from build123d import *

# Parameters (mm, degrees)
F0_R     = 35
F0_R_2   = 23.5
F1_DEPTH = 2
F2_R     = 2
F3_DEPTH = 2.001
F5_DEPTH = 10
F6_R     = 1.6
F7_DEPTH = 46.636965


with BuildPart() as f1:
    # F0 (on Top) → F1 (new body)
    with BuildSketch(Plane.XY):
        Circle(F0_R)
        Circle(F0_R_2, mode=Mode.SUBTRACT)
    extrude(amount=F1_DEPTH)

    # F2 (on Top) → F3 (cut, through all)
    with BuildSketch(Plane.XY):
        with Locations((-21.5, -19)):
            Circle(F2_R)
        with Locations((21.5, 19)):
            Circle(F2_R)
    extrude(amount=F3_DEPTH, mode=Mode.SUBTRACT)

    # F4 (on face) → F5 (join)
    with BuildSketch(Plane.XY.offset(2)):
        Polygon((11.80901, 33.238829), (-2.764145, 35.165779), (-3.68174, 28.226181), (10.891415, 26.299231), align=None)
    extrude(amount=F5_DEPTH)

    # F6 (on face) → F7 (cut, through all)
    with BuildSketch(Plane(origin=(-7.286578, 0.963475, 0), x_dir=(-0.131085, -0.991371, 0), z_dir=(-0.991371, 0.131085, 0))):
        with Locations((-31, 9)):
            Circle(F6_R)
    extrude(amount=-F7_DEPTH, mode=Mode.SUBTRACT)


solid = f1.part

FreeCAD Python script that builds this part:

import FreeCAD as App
import Part
import Sketcher
Q = App.Units.Quantity


def add_polygon(sketch, points):
    """Adds a closed chain of lines whose ends are joined by coincident constraints."""
    first, n = sketch.GeometryCount, len(points)
    for a, b in zip(points, points[1:] + points[:1]):
        sketch.addGeometry(Part.LineSegment(App.Vector(*a, 0), App.Vector(*b, 0)), False)
    for i in range(n):
        sketch.addConstraint(Sketcher.Constraint("Coincident", first + i, 2, first + (i + 1) % n, 1))

doc = App.newDocument("Part")
body = doc.addObject("PartDesign::Body", "Body")

sketch1 = doc.addObject("Sketcher::SketchObject", "Sketch")
body.addObject(sketch1)
sketch1.AttachmentSupport = (doc.XY_Plane, [""])
sketch1.MapMode = "FlatFace"
sketch1.addGeometry(Part.Circle(App.Vector(0, 0, 0), App.Vector(0, 0, 1), 35), False)
sketch1.addGeometry(Part.Circle(App.Vector(0, 0, 0), App.Vector(0, 0, 1), 23.5), False)
sketch1.addConstraint(Sketcher.Constraint("Coincident", 0, 3, -1, 1))
sketch1.addConstraint(Sketcher.Constraint("Coincident", 1, 3, -1, 1))
sketch1.addConstraint(Sketcher.Constraint("Diameter", 0, Q("70 mm")))
sketch1.addConstraint(Sketcher.Constraint("Diameter", 1, Q("47 mm")))
pad1 = doc.addObject("PartDesign::Pad", "Pad")
body.addObject(pad1)
pad1.Profile = sketch1
pad1.Length = 2

sketch2 = doc.addObject("Sketcher::SketchObject", "Sketch001")
body.addObject(sketch2)
sketch2.AttachmentSupport = (doc.XY_Plane, [""])
sketch2.MapMode = "FlatFace"
sketch2.addGeometry(Part.Circle(App.Vector(-21.5, -19, 0), App.Vector(0, 0, 1), 2), False)
sketch2.addGeometry(Part.Circle(App.Vector(21.5, 19, 0), App.Vector(0, 0, 1), 2), False)
sketch2.addConstraint(Sketcher.Constraint("Equal", 0, 1))
sketch2.addConstraint(Sketcher.Constraint("Symmetric", 0, 3, 1, 3, -1, 1))
sketch2.addConstraint(Sketcher.Constraint("Diameter", 0, Q("4 mm")))
sketch2.addConstraint(Sketcher.Constraint("DistanceY", 0, 3, -1, 1, Q("19 mm")))
sketch2.addConstraint(Sketcher.Constraint("DistanceX", 0, 3, 1, 3, Q("43 mm")))
pocket1 = doc.addObject("PartDesign::Pocket", "Pocket")
body.addObject(pocket1)
pocket1.Profile = sketch2
pocket1.Type = "ThroughAll"
pocket1.Reversed = True

sketch3 = doc.addObject("Sketcher::SketchObject", "Sketch002")
body.addObject(sketch3)
sketch3.AttachmentSupport = (doc.XY_Plane, [""])
sketch3.MapMode = "FlatFace"
sketch3.AttachmentOffset = App.Placement(App.Vector(0, 0, 2), App.Rotation())
add_polygon(sketch3, [(11.80901, 33.238829), (-2.764145, 35.165779), (-3.68174, 28.226181), (10.891415, 26.299231)])
sketch3.addConstraint(Sketcher.Constraint("Perpendicular", 0, 1))
sketch3.addConstraint(Sketcher.Constraint("Perpendicular", 1, 2))
sketch3.addConstraint(Sketcher.Constraint("Perpendicular", 2, 3))
sketch3.addConstraint(Sketcher.Constraint("Distance", 1, Q("7 mm")))
sketch3.addConstraint(Sketcher.Constraint("Distance", 0, Q("14.699999 mm")))
sketch3.addConstraint(Sketcher.Constraint("DistanceY", 2, 2, 3, 2, Q("6.939598 mm")))
sketch3.addConstraint(Sketcher.Constraint("DistanceY", -1, 1, 0, 2, Q("35.165779 mm")))
sketch3.addConstraint(Sketcher.Constraint("DistanceX", 1, 2, -1, 1, Q("3.68174 mm")))
pad2 = doc.addObject("PartDesign::Pad", "Pad001")
body.addObject(pad2)
pad2.Profile = sketch3
pad2.Length = 10

sketch4 = doc.addObject("Sketcher::SketchObject", "Sketch003")
body.addObject(sketch4)
sketch4.Placement = App.Placement(App.Vector(-7.286578, 0.963475, 0), App.Rotation(App.Vector(-0.131085017, -0.99137113, 0), App.Vector(0, 0, 0.999999999), App.Vector(-0.99137113, 0.131085017, 0), "ZXY"))
sketch4.addGeometry(Part.Circle(App.Vector(-31, 9, 0), App.Vector(0, 0, 1), 1.6), False)
sketch4.addConstraint(Sketcher.Constraint("Diameter", 0, Q("3.2 mm")))
sketch4.addConstraint(Sketcher.Constraint("DistanceX", 0, 3, -1, 1, Q("31 mm")))
sketch4.addConstraint(Sketcher.Constraint("DistanceY", -1, 1, 0, 3, Q("9 mm")))
pocket2 = doc.addObject("PartDesign::Pocket", "Pocket001")
body.addObject(pocket2)
pocket2.Profile = sketch4
pocket2.Type = "ThroughAll"

doc.recompute()
